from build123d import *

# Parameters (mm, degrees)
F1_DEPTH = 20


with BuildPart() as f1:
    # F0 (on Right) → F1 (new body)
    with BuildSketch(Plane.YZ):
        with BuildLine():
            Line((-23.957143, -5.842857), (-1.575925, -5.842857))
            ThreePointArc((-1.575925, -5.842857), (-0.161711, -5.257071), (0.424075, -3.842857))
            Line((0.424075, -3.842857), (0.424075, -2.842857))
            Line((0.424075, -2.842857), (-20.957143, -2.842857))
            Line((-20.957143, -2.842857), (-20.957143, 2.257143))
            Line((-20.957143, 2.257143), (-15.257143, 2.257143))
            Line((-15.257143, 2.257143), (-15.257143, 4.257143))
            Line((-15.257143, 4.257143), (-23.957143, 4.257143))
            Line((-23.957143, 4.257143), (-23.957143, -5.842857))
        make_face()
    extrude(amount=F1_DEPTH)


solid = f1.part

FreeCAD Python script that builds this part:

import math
import FreeCAD as App
import Part
import Sketcher
from FreeCAD import Vector
Q = App.Units.Quantity

doc = App.newDocument("Part")
body = doc.addObject("PartDesign::Body", "Body")

# Sketch on YZ plane
sketch1 = body.newObject("Sketcher::SketchObject", "Sketch")
sketch1.AttachmentSupport = (doc.getObject("YZ_Plane"), [""])
sketch1.MapMode = "FlatFace"
sketch1.addGeometry([
    Part.LineSegment(Vector(-23.957143, -5.842857, 0), Vector(-1.575925, -5.842857, 0)),  # 0
    Part.ArcOfCircle(Part.Circle(Vector(-1.575924, -3.842858, 0), Vector(0, 0, 1), 1.999999), math.radians(-90.000043), math.radians(0.000043)),  # 1
    Part.LineSegment(Vector(0.424075, -3.842857, 0), Vector(0.424075, -2.842857, 0)),  # 2
    Part.LineSegment(Vector(0.424075, -2.842857, 0), Vector(-20.957143, -2.842857, 0)),  # 3
    Part.LineSegment(Vector(-20.957143, -2.842857, 0), Vector(-20.957143, 2.257143, 0)),  # 4
    Part.LineSegment(Vector(-20.957143, 2.257143, 0), Vector(-15.257143, 2.257143, 0)),  # 5
    Part.LineSegment(Vector(-15.257143, 2.257143, 0), Vector(-15.257143, 4.257143, 0)),  # 6
    Part.LineSegment(Vector(-15.257143, 4.257143, 0), Vector(-23.957143, 4.257143, 0)),  # 7
    Part.LineSegment(Vector(-23.957143, 4.257143, 0), Vector(-23.957143, -5.842857, 0)),  # 8
], False)
sketch1.addConstraint([
    Sketcher.Constraint("Tangent", 0, 2, 1, 1),
    Sketcher.Constraint("Tangent", 1, 2, 2, 1),
    Sketcher.Constraint("Coincident", 2, 2, 3, 1),
    Sketcher.Constraint("Coincident", 3, 2, 4, 1),
    Sketcher.Constraint("Coincident", 4, 2, 5, 1),
    Sketcher.Constraint("Coincident", 5, 2, 6, 1),
    Sketcher.Constraint("Coincident", 6, 2, 7, 1),
    Sketcher.Constraint("Coincident", 7, 2, 8, 1),
    Sketcher.Constraint("Coincident", 8, 2, 0, 1),
    Sketcher.Constraint("Horizontal", 0),
    Sketcher.Constraint("Vertical", 2),
    Sketcher.Constraint("Horizontal", 3),
    Sketcher.Constraint("Vertical", 4),
    Sketcher.Constraint("Horizontal", 5),
    Sketcher.Constraint("Vertical", 6),
    Sketcher.Constraint("Horizontal", 7),
    Sketcher.Constraint("Vertical", 8),
    Sketcher.Constraint("Radius", 1, Q("1.999999 mm")),
    Sketcher.Constraint("DistanceY", 2, 1, 2, 2, Q("1 mm")),
    Sketcher.Constraint("DistanceY", 6, 1, 6, 2, Q("2 mm")),
    Sketcher.Constraint("DistanceX", 5, 1, 5, 2, Q("5.7 mm")),
    Sketcher.Constraint("DistanceX", 7, 2, 7, 1, Q("8.7 mm")),
    Sketcher.Constraint("DistanceY", 4, 1, 4, 2, Q("5.1 mm")),
    Sketcher.Constraint("DistanceX", 0, 1, 0, 2, Q("22.381218 mm")),
    Sketcher.Constraint("DistanceY", 1, 3, -1, 1, Q("3.842858 mm")),
    Sketcher.Constraint("DistanceX", 1, 3, -1, 1, Q("1.575924 mm")),
])
pad1 = body.newObject("PartDesign::Pad", "Pad")
pad1.Profile = sketch1
pad1.Length = 20

doc.recompute()
